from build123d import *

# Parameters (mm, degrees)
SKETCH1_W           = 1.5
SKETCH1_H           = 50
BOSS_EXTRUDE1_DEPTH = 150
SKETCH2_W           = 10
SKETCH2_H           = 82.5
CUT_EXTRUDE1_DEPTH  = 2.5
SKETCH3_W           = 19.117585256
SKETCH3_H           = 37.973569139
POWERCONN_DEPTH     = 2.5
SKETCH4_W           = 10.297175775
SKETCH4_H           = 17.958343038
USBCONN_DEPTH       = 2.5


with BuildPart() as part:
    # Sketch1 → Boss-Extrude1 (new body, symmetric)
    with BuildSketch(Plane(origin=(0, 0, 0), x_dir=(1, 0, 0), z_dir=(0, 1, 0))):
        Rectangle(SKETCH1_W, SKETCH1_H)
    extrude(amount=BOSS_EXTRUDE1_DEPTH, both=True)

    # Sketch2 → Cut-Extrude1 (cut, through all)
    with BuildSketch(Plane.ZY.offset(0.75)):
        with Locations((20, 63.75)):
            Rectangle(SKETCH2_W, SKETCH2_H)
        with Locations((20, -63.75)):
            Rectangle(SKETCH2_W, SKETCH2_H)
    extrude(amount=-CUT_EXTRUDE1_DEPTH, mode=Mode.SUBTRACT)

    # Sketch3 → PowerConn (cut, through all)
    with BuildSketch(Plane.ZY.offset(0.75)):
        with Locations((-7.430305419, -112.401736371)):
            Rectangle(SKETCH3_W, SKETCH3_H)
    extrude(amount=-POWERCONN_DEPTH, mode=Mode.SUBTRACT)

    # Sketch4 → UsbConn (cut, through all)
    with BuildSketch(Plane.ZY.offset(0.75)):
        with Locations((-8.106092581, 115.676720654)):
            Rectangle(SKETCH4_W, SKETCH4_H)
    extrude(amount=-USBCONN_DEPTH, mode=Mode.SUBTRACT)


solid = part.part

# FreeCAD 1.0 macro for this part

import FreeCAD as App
import Part
import Sketcher
from FreeCAD import Vector

doc = App.newDocument("Part")
body = doc.addObject("PartDesign::Body", "Body")

# Sketch on XZ plane
sketch1 = body.newObject("Sketcher::SketchObject", "Sketch")
sketch1.AttachmentSupport = (doc.getObject("XZ_Plane"), [""])
sketch1.MapMode = "FlatFace"
sketch1.addGeometry([
    Part.LineSegment(Vector(-0.75, -25, 0), Vector(-0.75, 25, 0)),
    Part.LineSegment(Vector(-0.75, 25, 0), Vector(0.75, 25, 0)),
    Part.LineSegment(Vector(0.75, 25, 0), Vector(0.75, -25, 0)),
    Part.LineSegment(Vector(0.75, -25, 0), Vector(-0.75, -25, 0)),
], False)
sketch1.addConstraint([
    Sketcher.Constraint("Coincident", 0, 2, 1, 1),
    Sketcher.Constraint("Coincident", 1, 2, 2, 1),
    Sketcher.Constraint("Coincident", 2, 2, 3, 1),
    Sketcher.Constraint("Coincident", 3, 2, 0, 1),
    Sketcher.Constraint("Vertical", 0),
    Sketcher.Constraint("Horizontal", 1),
    Sketcher.Constraint("Vertical", 2),
    Sketcher.Constraint("Horizontal", 3),
    Sketcher.Constraint("Symmetric", 0, 2, 2, 2, -1, 1),
    Sketcher.Constraint("DistanceY", 0, 1, 0, 2, 50.0),
    Sketcher.Constraint("DistanceX", 1, 1, 1, 2, 1.5),
])
pad1 = body.newObject("PartDesign::Pad", "Pad")
pad1.Profile = sketch1
pad1.Length = 300
pad1.Midplane = True

# Sketch on YZ plane
sketch2 = body.newObject("Sketcher::SketchObject", "Sketch001")
sketch2.AttachmentSupport = (doc.getObject("YZ_Plane"), [""])
sketch2.MapMode = "FlatFace"
sketch2.AttachmentOffset = App.Placement(Vector(0, 0, -0.75), App.Rotation())
sketch2.addGeometry([
    Part.LineSegment(Vector(105, 15, 0), Vector(22.5, 15, 0)),  # 0
    Part.LineSegment(Vector(22.5, 15, 0), Vector(22.5, 25, 0)),  # 1
    Part.LineSegment(Vector(22.5, 25, 0), Vector(105, 25, 0)),  # 2
    Part.LineSegment(Vector(105, 25, 0), Vector(105, 15, 0)),  # 3
    Part.LineSegment(Vector(-22.5, 15, 0), Vector(-105, 15, 0)),  # 4
    Part.LineSegment(Vector(-105, 15, 0), Vector(-105, 25, 0)),  # 5
    Part.LineSegment(Vector(-105, 25, 0), Vector(-22.5, 25, 0)),  # 6
    Part.LineSegment(Vector(-22.5, 25, 0), Vector(-22.5, 15, 0)),  # 7
], False)
sketch2.addConstraint([
    Sketcher.Constraint("Coincident", 0, 2, 1, 1),
    Sketcher.Constraint("Coincident", 1, 2, 2, 1),
    Sketcher.Constraint("Coincident", 2, 2, 3, 1),
    Sketcher.Constraint("Coincident", 3, 2, 0, 1),
    Sketcher.Constraint("Coincident", 4, 2, 5, 1),
    Sketcher.Constraint("Coincident", 5, 2, 6, 1),
    Sketcher.Constraint("Coincident", 6, 2, 7, 1),
    Sketcher.Constraint("Coincident", 7, 2, 4, 1),
    Sketcher.Constraint("Horizontal", 0),
    Sketcher.Constraint("Vertical", 1),
    Sketcher.Constraint("Horizontal", 2),
    Sketcher.Constraint("Vertical", 3),
    Sketcher.Constraint("Horizontal", 4),
    Sketcher.Constraint("Vertical", 5),
    Sketcher.Constraint("Horizontal", 6),
    Sketcher.Constraint("Vertical", 7),
    Sketcher.Constraint("Symmetric", 3, 2, 4, 2, -2),
    Sketcher.Constraint("Symmetric", 1, 2, 6, 2, -2),
    Sketcher.Constraint("DistanceY", 1, 1, 1, 2, 10.0),
    Sketcher.Constraint("DistanceX", 0, 2, 0, 1, 82.5),
    Sketcher.Constraint("DistanceY", -1, 1, 0, 2, 15.0),
    Sketcher.Constraint("DistanceX", -1, 1, 2, 2, 105.0),
])
pocket1 = body.newObject("PartDesign::Pocket", "Pocket")
pocket1.Profile = sketch2
pocket1.Type = "ThroughAll"
pocket1.Reversed = True

# Sketch on YZ plane
sketch3 = body.newObject("Sketcher::SketchObject", "Sketch002")
sketch3.AttachmentSupport = (doc.getObject("YZ_Plane"), [""])
sketch3.MapMode = "FlatFace"
sketch3.AttachmentOffset = App.Placement(Vector(0, 0, -0.75), App.Rotation())
sketch3.addGeometry([
    Part.LineSegment(Vector(-93.414952, -16.989098, 0), Vector(-131.388521, -16.989098, 0)),
    Part.LineSegment(Vector(-131.388521, -16.989098, 0), Vector(-131.388521, 2.128487, 0)),
    Part.LineSegment(Vector(-131.388521, 2.128487, 0), Vector(-93.414952, 2.128487, 0)),
    Part.LineSegment(Vector(-93.414952, 2.128487, 0), Vector(-93.414952, -16.989098, 0)),
], False)
sketch3.addConstraint([
    Sketcher.Constraint("Coincident", 0, 2, 1, 1),
    Sketcher.Constraint("Coincident", 1, 2, 2, 1),
    Sketcher.Constraint("Coincident", 2, 2, 3, 1),
    Sketcher.Constraint("Coincident", 3, 2, 0, 1),
    Sketcher.Constraint("Horizontal", 0),
    Sketcher.Constraint("Vertical", 1),
    Sketcher.Constraint("Horizontal", 2),
    Sketcher.Constraint("Vertical", 3),
    Sketcher.Constraint("DistanceX", 0, 2, 0, 1, 37.973569),
    Sketcher.Constraint("DistanceY", 0, 2, -1, 1, 16.989098),
    Sketcher.Constraint("DistanceY", 1, 1, 1, 2, 19.117585),
    Sketcher.Constraint("DistanceX", 0, 2, -1, 1, 131.388521),
])
pocket2 = body.newObject("PartDesign::Pocket", "Pocket001")
pocket2.Profile = sketch3
pocket2.Type = "ThroughAll"
pocket2.Reversed = True

# Sketch on YZ plane
sketch4 = body.newObject("Sketcher::SketchObject", "Sketch003")
sketch4.AttachmentSupport = (doc.getObject("YZ_Plane"), [""])
sketch4.MapMode = "FlatFace"
sketch4.AttachmentOffset = App.Placement(Vector(0, 0, -0.75), App.Rotation())
sketch4.addGeometry([
    Part.LineSegment(Vector(124.655892, -13.25468, 0), Vector(106.697549, -13.25468, 0)),
    Part.LineSegment(Vector(106.697549, -13.25468, 0), Vector(106.697549, -2.957505, 0)),
    Part.LineSegment(Vector(106.697549, -2.957505, 0), Vector(124.655892, -2.957505, 0)),
    Part.LineSegment(Vector(124.655892, -2.957505, 0), Vector(124.655892, -13.25468, 0)),
], False)
sketch4.addConstraint([
    Sketcher.Constraint("Coincident", 0, 2, 1, 1),
    Sketcher.Constraint("Coincident", 1, 2, 2, 1),
    Sketcher.Constraint("Coincident", 2, 2, 3, 1),
    Sketcher.Constraint("Coincident", 3, 2, 0, 1),
    Sketcher.Constraint("Horizontal", 0),
    Sketcher.Constraint("Vertical", 1),
    Sketcher.Constraint("Horizontal", 2),
    Sketcher.Constraint("Vertical", 3),
    Sketcher.Constraint("DistanceX", 0, 2, 0, 1, 17.958343),
    Sketcher.Constraint("DistanceY", 1, 1, 1, 2, 10.297176),
    Sketcher.Constraint("DistanceX", -1, 1, 0, 2, 106.697549),
    Sketcher.Constraint("DistanceY", 0, 2, -1, 1, 13.25468),
])
pocket3 = body.newObject("PartDesign::Pocket", "Pocket002")
pocket3.Profile = sketch4
pocket3.Type = "ThroughAll"
pocket3.Reversed = True

doc.recompute()
